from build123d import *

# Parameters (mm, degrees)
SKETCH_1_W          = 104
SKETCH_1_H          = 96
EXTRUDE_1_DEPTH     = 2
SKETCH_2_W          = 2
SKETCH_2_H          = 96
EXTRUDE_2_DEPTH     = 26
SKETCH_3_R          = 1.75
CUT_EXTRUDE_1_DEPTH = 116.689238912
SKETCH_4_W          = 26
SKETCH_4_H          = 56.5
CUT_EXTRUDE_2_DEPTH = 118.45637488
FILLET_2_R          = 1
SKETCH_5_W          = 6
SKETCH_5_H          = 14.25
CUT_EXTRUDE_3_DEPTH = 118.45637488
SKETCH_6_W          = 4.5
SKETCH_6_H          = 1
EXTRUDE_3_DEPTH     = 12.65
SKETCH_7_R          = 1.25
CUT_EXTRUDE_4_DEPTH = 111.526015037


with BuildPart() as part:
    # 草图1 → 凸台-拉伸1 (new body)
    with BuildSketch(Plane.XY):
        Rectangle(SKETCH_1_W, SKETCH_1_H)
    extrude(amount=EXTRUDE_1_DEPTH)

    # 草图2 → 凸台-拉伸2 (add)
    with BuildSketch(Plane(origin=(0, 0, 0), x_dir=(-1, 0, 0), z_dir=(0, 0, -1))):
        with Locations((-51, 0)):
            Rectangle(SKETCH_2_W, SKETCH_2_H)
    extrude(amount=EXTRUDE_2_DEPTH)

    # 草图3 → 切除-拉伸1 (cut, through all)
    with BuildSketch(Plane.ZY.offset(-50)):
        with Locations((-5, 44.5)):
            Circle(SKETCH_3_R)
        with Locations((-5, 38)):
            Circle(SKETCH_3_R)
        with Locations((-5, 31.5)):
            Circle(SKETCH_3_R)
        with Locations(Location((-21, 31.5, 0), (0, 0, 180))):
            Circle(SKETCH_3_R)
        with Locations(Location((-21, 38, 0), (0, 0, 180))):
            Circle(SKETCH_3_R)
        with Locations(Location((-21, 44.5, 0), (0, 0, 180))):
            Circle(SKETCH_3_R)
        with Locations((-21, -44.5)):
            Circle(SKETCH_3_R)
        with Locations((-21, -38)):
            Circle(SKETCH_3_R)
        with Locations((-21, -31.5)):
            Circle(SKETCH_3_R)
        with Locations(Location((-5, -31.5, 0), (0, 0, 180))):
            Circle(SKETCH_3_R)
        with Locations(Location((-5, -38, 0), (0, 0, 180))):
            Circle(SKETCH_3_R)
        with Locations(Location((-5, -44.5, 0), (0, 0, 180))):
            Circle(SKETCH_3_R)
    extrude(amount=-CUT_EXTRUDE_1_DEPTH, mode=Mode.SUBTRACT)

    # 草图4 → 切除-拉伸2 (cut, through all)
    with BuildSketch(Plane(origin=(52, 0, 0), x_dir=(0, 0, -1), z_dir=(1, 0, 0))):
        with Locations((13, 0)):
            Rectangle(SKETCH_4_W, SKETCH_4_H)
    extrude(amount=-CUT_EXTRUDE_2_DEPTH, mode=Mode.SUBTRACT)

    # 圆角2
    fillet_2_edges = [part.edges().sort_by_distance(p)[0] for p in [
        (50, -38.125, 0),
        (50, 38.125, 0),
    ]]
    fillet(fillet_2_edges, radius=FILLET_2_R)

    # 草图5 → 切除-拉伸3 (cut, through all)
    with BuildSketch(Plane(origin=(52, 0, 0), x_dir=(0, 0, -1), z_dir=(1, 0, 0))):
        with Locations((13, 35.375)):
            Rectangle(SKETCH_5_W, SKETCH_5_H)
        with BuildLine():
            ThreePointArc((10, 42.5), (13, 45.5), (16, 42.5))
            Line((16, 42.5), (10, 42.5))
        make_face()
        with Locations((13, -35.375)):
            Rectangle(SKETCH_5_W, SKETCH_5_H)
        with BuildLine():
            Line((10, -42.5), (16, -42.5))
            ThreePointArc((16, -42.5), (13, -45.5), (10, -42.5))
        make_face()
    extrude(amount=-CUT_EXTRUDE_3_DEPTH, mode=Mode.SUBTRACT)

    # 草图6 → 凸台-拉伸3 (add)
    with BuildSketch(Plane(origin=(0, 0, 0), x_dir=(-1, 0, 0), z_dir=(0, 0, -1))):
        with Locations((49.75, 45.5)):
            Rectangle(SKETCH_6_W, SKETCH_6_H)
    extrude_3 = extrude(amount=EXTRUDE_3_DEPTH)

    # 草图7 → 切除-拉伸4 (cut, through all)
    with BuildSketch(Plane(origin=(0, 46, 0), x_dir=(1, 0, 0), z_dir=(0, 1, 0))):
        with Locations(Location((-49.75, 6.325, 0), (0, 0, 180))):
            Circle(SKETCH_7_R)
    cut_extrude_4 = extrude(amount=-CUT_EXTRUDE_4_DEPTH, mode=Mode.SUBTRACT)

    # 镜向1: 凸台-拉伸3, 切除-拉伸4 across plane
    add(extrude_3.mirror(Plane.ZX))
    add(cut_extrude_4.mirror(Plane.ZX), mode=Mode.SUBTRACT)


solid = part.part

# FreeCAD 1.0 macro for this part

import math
import FreeCAD as App
import Part
import Sketcher

V = App.Vector
Q = App.Units.Quantity


def edges_at(feature, points):
    """Names of the edges that pass closest to the given points."""
    edges = feature.Shape.Edges
    near = lambda p: min(range(len(edges)), key=lambda i: edges[i].distToShape(Part.Vertex(*p))[0])
    return sorted({f"Edge{near(p) + 1}" for p in points})

doc = App.newDocument("Part")
body = doc.addObject("PartDesign::Body", "Body")

sketch1 = body.newObject("Sketcher::SketchObject", "Sketch")
sketch1.AttachmentSupport = (doc.getObject("XY_Plane"), [""])
sketch1.MapMode = "FlatFace"
sketch1.addGeometry(Part.LineSegment(V(-52, 48, 0), V(-52, -48, 0)), False)
sketch1.addGeometry(Part.LineSegment(V(-52, -48, 0), V(52, -48, 0)), False)
sketch1.addGeometry(Part.LineSegment(V(52, -48, 0), V(52, 48, 0)), False)
sketch1.addGeometry(Part.LineSegment(V(52, 48, 0), V(-52, 48, 0)), False)
sketch1.addConstraint(Sketcher.Constraint("Coincident", 0, 2, 1, 1))
sketch1.addConstraint(Sketcher.Constraint("Coincident", 1, 2, 2, 1))
sketch1.addConstraint(Sketcher.Constraint("Coincident", 2, 2, 3, 1))
sketch1.addConstraint(Sketcher.Constraint("Coincident", 3, 2, 0, 1))
sketch1.addConstraint(Sketcher.Constraint("Vertical", 0))
sketch1.addConstraint(Sketcher.Constraint("Horizontal", 1))
sketch1.addConstraint(Sketcher.Constraint("Vertical", 2))
sketch1.addConstraint(Sketcher.Constraint("Horizontal", 3))
sketch1.addConstraint(Sketcher.Constraint("Symmetric", 0, 2, 2, 2, -1, 1))
sketch1.addConstraint(Sketcher.Constraint("DistanceX", 1, 1, 1, 2, Q("104 mm")))
sketch1.addConstraint(Sketcher.Constraint("DistanceY", 0, 2, 0, 1, Q("96 mm")))
pad1 = body.newObject("PartDesign::Pad", "Pad")
pad1.Profile = sketch1
pad1.Length = 2

sketch2 = body.newObject("Sketcher::SketchObject", "Sketch001")
sketch2.AttachmentSupport = (doc.getObject("XY_Plane"), [""])
sketch2.MapMode = "FlatFace"
sketch2.addGeometry(Part.LineSegment(V(52, 48, 0), V(52, -48, 0)), False)
sketch2.addGeometry(Part.LineSegment(V(52, -48, 0), V(50, -48, 0)), False)
sketch2.addGeometry(Part.LineSegment(V(50, -48, 0), V(50, 48, 0)), False)
sketch2.addGeometry(Part.LineSegment(V(50, 48, 0), V(52, 48, 0)), False)
sketch2.addConstraint(Sketcher.Constraint("Coincident", 0, 2, 1, 1))
sketch2.addConstraint(Sketcher.Constraint("Coincident", 1, 2, 2, 1))
sketch2.addConstraint(Sketcher.Constraint("Coincident", 2, 2, 3, 1))
sketch2.addConstraint(Sketcher.Constraint("Coincident", 3, 2, 0, 1))
sketch2.addConstraint(Sketcher.Constraint("Vertical", 0))
sketch2.addConstraint(Sketcher.Constraint("Horizontal", 1))
sketch2.addConstraint(Sketcher.Constraint("Vertical", 2))
sketch2.addConstraint(Sketcher.Constraint("Horizontal", 3))
sketch2.addConstraint(Sketcher.Constraint("DistanceX", 1, 2, 1, 1, Q("2 mm")))
sketch2.addConstraint(Sketcher.Constraint("DistanceY", 0, 2, 0, 1, Q("96 mm")))
sketch2.addConstraint(Sketcher.Constraint("DistanceX", -1, 1, 0, 2, Q("52 mm")))
sketch2.addConstraint(Sketcher.Constraint("DistanceY", 0, 2, -1, 1, Q("48 mm")))
pad2 = body.newObject("PartDesign::Pad", "Pad001")
pad2.Profile = sketch2
pad2.Length = 26
pad2.Reversed = True

sketch3 = body.newObject("Sketcher::SketchObject", "Sketch002")
sketch3.AttachmentSupport = (doc.getObject("YZ_Plane"), [""])
sketch3.MapMode = "FlatFace"
sketch3.AttachmentOffset = App.Placement(V(0, 0, 50), App.Rotation())
sketch3.addGeometry(Part.Circle(V(44.5, -5, 0), V(0, 0, 1), 1.8), False)
sketch3.addGeometry(Part.Circle(V(38, -5, 0), V(0, 0, 1), 1.8), False)
sketch3.addGeometry(Part.Circle(V(31.5, -5, 0), V(0, 0, 1), 1.8), False)
sketch3.addGeometry(Part.Circle(V(31.5, -21, 0), V(0, 0, 1), 1.8), False)
sketch3.addGeometry(Part.Circle(V(38, -21, 0), V(0, 0, 1), 1.8), False)
sketch3.addGeometry(Part.Circle(V(44.5, -21, 0), V(0, 0, 1), 1.8), False)
sketch3.addGeometry(Part.Circle(V(-44.5, -21, 0), V(0, 0, 1), 1.8), False)
sketch3.addGeometry(Part.Circle(V(-38, -21, 0), V(0, 0, 1), 1.8), False)
sketch3.addGeometry(Part.Circle(V(-31.5, -21, 0), V(0, 0, 1), 1.8), False)
sketch3.addGeometry(Part.Circle(V(-31.5, -5, 0), V(0, 0, 1), 1.8), False)
sketch3.addGeometry(Part.Circle(V(-38, -5, 0), V(0, 0, 1), 1.8), False)
sketch3.addGeometry(Part.Circle(V(-44.5, -5, 0), V(0, 0, 1), 1.8), False)
sketch3.addConstraint(Sketcher.Constraint("Equal", 0, 1))
sketch3.addConstraint(Sketcher.Constraint("Equal", 1, 2))
sketch3.addConstraint(Sketcher.Constraint("Equal", 2, 3))
sketch3.addConstraint(Sketcher.Constraint("Equal", 3, 4))
sketch3.addConstraint(Sketcher.Constraint("Equal", 4, 5))
sketch3.addConstraint(Sketcher.Constraint("Equal", 5, 6))
sketch3.addConstraint(Sketcher.Constraint("Equal", 6, 7))
sketch3.addConstraint(Sketcher.Constraint("Equal", 7, 8))
sketch3.addConstraint(Sketcher.Constraint("Equal", 8, 9))
sketch3.addConstraint(Sketcher.Constraint("Equal", 9, 10))
sketch3.addConstraint(Sketcher.Constraint("Equal", 10, 11))
sketch3.addConstraint(Sketcher.Constraint("Symmetric", 5, 3, 6, 3, -2))
sketch3.addConstraint(Sketcher.Constraint("Symmetric", 4, 3, 7, 3, -2))
sketch3.addConstraint(Sketcher.Constraint("Symmetric", 3, 3, 8, 3, -2))
sketch3.addConstraint(Sketcher.Constraint("Symmetric", 2, 3, 9, 3, -2))
sketch3.addConstraint(Sketcher.Constraint("Symmetric", 1, 3, 10, 3, -2))
sketch3.addConstraint(Sketcher.Constraint("Symmetric", 0, 3, 11, 3, -2))
sketch3.addConstraint(Sketcher.Constraint("Horizontal", 0, 3, 1, 3))
sketch3.addConstraint(Sketcher.Constraint("Horizontal", 1, 3, 2, 3))
sketch3.addConstraint(Sketcher.Constraint("Horizontal", 3, 3, 4, 3))
sketch3.addConstraint(Sketcher.Constraint("Horizontal", 4, 3, 5, 3))
sketch3.addConstraint(Sketcher.Constraint("Vertical", 2, 3, 3, 3))
sketch3.addConstraint(Sketcher.Constraint("Vertical", 1, 3, 4, 3))
sketch3.addConstraint(Sketcher.Constraint("Vertical", 0, 3, 5, 3))
sketch3.addConstraint(Sketcher.Constraint("Diameter", 0, Q("3.5 mm")))
sketch3.addConstraint(Sketcher.Constraint("DistanceY", 0, 3, -1, 1, Q("5 mm")))
sketch3.addConstraint(Sketcher.Constraint("DistanceX", -1, 1, 1, 3, Q("38 mm")))
sketch3.addConstraint(Sketcher.Constraint("DistanceY", 3, 3, -1, 1, Q("21 mm")))
sketch3.addConstraint(Sketcher.Constraint("DistanceX", 2, 3, 0, 3, Q("13 mm")))
sketch3.addConstraint(Sketcher.Constraint("DistanceX", 6, 3, 3, 3, Q("76 mm")))
pocket1 = body.newObject("PartDesign::Pocket", "Pocket")
pocket1.Profile = sketch3
pocket1.Type = "ThroughAll"
pocket1.Reversed = True

sketch4 = body.newObject("Sketcher::SketchObject", "Sketch003")
sketch4.AttachmentSupport = (doc.getObject("YZ_Plane"), [""])
sketch4.MapMode = "FlatFace"
sketch4.AttachmentOffset = App.Placement(V(0, 0, 52), App.Rotation())
sketch4.addGeometry(Part.LineSegment(V(28, 0, 0), V(-28, 0, 0)), False)
sketch4.addGeometry(Part.LineSegment(V(-28, 0, 0), V(-28, -26, 0)), False)
sketch4.addGeometry(Part.LineSegment(V(-28, -26, 0), V(28, -26, 0)), False)
sketch4.addGeometry(Part.LineSegment(V(28, -26, 0), V(28, 0, 0)), False)
sketch4.addConstraint(Sketcher.Constraint("Coincident", 0, 2, 1, 1))
sketch4.addConstraint(Sketcher.Constraint("Coincident", 1, 2, 2, 1))
sketch4.addConstraint(Sketcher.Constraint("Coincident", 2, 2, 3, 1))
sketch4.addConstraint(Sketcher.Constraint("Coincident", 3, 2, 0, 1))
sketch4.addConstraint(Sketcher.Constraint("Horizontal", 0))
sketch4.addConstraint(Sketcher.Constraint("Vertical", 1))
sketch4.addConstraint(Sketcher.Constraint("Horizontal", 2))
sketch4.addConstraint(Sketcher.Constraint("Vertical", 3))
sketch4.addConstraint(Sketcher.Constraint("Symmetric", 0, 2, 3, 2, -1, 1))
sketch4.addConstraint(Sketcher.Constraint("DistanceY", 1, 2, 1, 1, Q("26 mm")))
sketch4.addConstraint(Sketcher.Constraint("DistanceX", 0, 2, 0, 1, Q("56.5 mm")))
pocket2 = body.newObject("PartDesign::Pocket", "Pocket001")
pocket2.Profile = sketch4
pocket2.Type = "ThroughAll"
doc.recompute()

fillet = body.newObject("PartDesign::Fillet", "Fillet")
fillet.Base = (pocket2, edges_at(pocket2, [(50, -38.125, 0), (50, 38.125, 0)]))
fillet.Radius = 1

sketch5 = body.newObject("Sketcher::SketchObject", "Sketch004")
sketch5.AttachmentSupport = (doc.getObject("YZ_Plane"), [""])
sketch5.MapMode = "FlatFace"
sketch5.AttachmentOffset = App.Placement(V(0, 0, 52), App.Rotation())
sketch5.addGeometry(Part.LineSegment(V(42.5, -10, 0), V(28.2, -10, 0)), False)
sketch5.addGeometry(Part.LineSegment(V(28.2, -10, 0), V(28.2, -16, 0)), False)
sketch5.addGeometry(Part.LineSegment(V(28.2, -16, 0), V(42.5, -16, 0)), False)
sketch5.addGeometry(Part.ArcOfCircle(Part.Circle(V(42.5, -13, 0), V(0, 0, 1), 3), math.radians(-90), math.radians(90)), False)
sketch5.addGeometry(Part.LineSegment(V(-28.2, -10, 0), V(-42.5, -10, 0)), False)
sketch5.addGeometry(Part.ArcOfCircle(Part.Circle(V(-42.5, -13, 0), V(0, 0, 1), 3), math.radians(90), math.radians(270)), False)
sketch5.addGeometry(Part.LineSegment(V(-42.5, -16, 0), V(-28.2, -16, 0)), False)
sketch5.addGeometry(Part.LineSegment(V(-28.2, -16, 0), V(-28.2, -10, 0)), False)
sketch5.addConstraint(Sketcher.Constraint("Coincident", 0, 2, 1, 1))
sketch5.addConstraint(Sketcher.Constraint("Coincident", 1, 2, 2, 1))
sketch5.addConstraint(Sketcher.Constraint("Tangent", 2, 2, 3, 1))
sketch5.addConstraint(Sketcher.Constraint("Tangent", 3, 2, 0, 1))
sketch5.addConstraint(Sketcher.Constraint("Tangent", 4, 2, 5, 1))
sketch5.addConstraint(Sketcher.Constraint("Tangent", 5, 2, 6, 1))
sketch5.addConstraint(Sketcher.Constraint("Coincident", 6, 2, 7, 1))
sketch5.addConstraint(Sketcher.Constraint("Coincident", 7, 2, 4, 1))
sketch5.addConstraint(Sketcher.Constraint("Horizontal", 0))
sketch5.addConstraint(Sketcher.Constraint("Vertical", 1))
sketch5.addConstraint(Sketcher.Constraint("Horizontal", 2))
sketch5.addConstraint(Sketcher.Constraint("Horizontal", 4))
sketch5.addConstraint(Sketcher.Constraint("Horizontal", 6))
sketch5.addConstraint(Sketcher.Constraint("Vertical", 7))
sketch5.addConstraint(Sketcher.Constraint("Equal", 3, 5))
sketch5.addConstraint(Sketcher.Constraint("Symmetric", 3, 3, 5, 3, -2))
sketch5.addConstraint(Sketcher.Constraint("Equal", 2, 4))
sketch5.addConstraint(Sketcher.Constraint("Radius", 3, Q("3 mm")))
sketch5.addConstraint(Sketcher.Constraint("DistanceY", 3, 3, -1, 1, Q("13 mm")))
sketch5.addConstraint(Sketcher.Constraint("DistanceX", 5, 3, 3, 3, Q("85 mm")))
sketch5.addConstraint(Sketcher.Constraint("DistanceX", 0, 2, 0, 1, Q("14.25 mm")))
pocket3 = body.newObject("PartDesign::Pocket", "Pocket002")
pocket3.Profile = sketch5
pocket3.Type = "ThroughAll"

sketch6 = body.newObject("Sketcher::SketchObject", "Sketch005")
sketch6.AttachmentSupport = (doc.getObject("XY_Plane"), [""])
sketch6.MapMode = "FlatFace"
sketch6.addGeometry(Part.LineSegment(V(-47.5, 46, 0), V(-47.5, 45, 0)), False)
sketch6.addGeometry(Part.LineSegment(V(-47.5, 45, 0), V(-52, 45, 0)), False)
sketch6.addGeometry(Part.LineSegment(V(-52, 45, 0), V(-52, 46, 0)), False)
sketch6.addGeometry(Part.LineSegment(V(-52, 46, 0), V(-47.5, 46, 0)), False)
sketch6.addConstraint(Sketcher.Constraint("Coincident", 0, 2, 1, 1))
sketch6.addConstraint(Sketcher.Constraint("Coincident", 1, 2, 2, 1))
sketch6.addConstraint(Sketcher.Constraint("Coincident", 2, 2, 3, 1))
sketch6.addConstraint(Sketcher.Constraint("Coincident", 3, 2, 0, 1))
sketch6.addConstraint(Sketcher.Constraint("Vertical", 0))
sketch6.addConstraint(Sketcher.Constraint("Horizontal", 1))
sketch6.addConstraint(Sketcher.Constraint("Vertical", 2))
sketch6.addConstraint(Sketcher.Constraint("Horizontal", 3))
sketch6.addConstraint(Sketcher.Constraint("DistanceY", 0, 2, 0, 1, Q("1 mm")))
sketch6.addConstraint(Sketcher.Constraint("DistanceX", 1, 2, 1, 1, Q("4.5 mm")))
sketch6.addConstraint(Sketcher.Constraint("DistanceY", -1, 1, 0, 2, Q("45 mm")))
sketch6.addConstraint(Sketcher.Constraint("DistanceX", 1, 2, -1, 1, Q("52 mm")))
pad3 = body.newObject("PartDesign::Pad", "Pad002")
pad3.Profile = sketch6
pad3.Length = 12.65
pad3.Reversed = True

sketch7 = body.newObject("Sketcher::SketchObject", "Sketch006")
sketch7.AttachmentSupport = (doc.getObject("XZ_Plane"), [""])
sketch7.MapMode = "FlatFace"
sketch7.AttachmentOffset = App.Placement(V(0, 0, -46), App.Rotation())
sketch7.addGeometry(Part.Circle(V(-49.8, -6.3, 0), V(0, 0, 1), 1.2), False)
sketch7.addConstraint(Sketcher.Constraint("Diameter", 0, Q("2.5 mm")))
sketch7.addConstraint(Sketcher.Constraint("DistanceX", 0, 3, -1, 1, Q("49.75 mm")))
sketch7.addConstraint(Sketcher.Constraint("DistanceY", 0, 3, -1, 1, Q("6.325 mm")))
pocket4 = body.newObject("PartDesign::Pocket", "Pocket003")
pocket4.Profile = sketch7
pocket4.Type = "ThroughAll"
pocket4.Reversed = True
doc.recompute()

mirrored = body.newObject("PartDesign::Mirrored", "Mirrored")
mirrored.Originals = [pad3, pocket4]
mirrored.MirrorPlane = (doc.getObject("XZ_Plane"), [""])
body.Tip = mirrored

doc.recompute()
